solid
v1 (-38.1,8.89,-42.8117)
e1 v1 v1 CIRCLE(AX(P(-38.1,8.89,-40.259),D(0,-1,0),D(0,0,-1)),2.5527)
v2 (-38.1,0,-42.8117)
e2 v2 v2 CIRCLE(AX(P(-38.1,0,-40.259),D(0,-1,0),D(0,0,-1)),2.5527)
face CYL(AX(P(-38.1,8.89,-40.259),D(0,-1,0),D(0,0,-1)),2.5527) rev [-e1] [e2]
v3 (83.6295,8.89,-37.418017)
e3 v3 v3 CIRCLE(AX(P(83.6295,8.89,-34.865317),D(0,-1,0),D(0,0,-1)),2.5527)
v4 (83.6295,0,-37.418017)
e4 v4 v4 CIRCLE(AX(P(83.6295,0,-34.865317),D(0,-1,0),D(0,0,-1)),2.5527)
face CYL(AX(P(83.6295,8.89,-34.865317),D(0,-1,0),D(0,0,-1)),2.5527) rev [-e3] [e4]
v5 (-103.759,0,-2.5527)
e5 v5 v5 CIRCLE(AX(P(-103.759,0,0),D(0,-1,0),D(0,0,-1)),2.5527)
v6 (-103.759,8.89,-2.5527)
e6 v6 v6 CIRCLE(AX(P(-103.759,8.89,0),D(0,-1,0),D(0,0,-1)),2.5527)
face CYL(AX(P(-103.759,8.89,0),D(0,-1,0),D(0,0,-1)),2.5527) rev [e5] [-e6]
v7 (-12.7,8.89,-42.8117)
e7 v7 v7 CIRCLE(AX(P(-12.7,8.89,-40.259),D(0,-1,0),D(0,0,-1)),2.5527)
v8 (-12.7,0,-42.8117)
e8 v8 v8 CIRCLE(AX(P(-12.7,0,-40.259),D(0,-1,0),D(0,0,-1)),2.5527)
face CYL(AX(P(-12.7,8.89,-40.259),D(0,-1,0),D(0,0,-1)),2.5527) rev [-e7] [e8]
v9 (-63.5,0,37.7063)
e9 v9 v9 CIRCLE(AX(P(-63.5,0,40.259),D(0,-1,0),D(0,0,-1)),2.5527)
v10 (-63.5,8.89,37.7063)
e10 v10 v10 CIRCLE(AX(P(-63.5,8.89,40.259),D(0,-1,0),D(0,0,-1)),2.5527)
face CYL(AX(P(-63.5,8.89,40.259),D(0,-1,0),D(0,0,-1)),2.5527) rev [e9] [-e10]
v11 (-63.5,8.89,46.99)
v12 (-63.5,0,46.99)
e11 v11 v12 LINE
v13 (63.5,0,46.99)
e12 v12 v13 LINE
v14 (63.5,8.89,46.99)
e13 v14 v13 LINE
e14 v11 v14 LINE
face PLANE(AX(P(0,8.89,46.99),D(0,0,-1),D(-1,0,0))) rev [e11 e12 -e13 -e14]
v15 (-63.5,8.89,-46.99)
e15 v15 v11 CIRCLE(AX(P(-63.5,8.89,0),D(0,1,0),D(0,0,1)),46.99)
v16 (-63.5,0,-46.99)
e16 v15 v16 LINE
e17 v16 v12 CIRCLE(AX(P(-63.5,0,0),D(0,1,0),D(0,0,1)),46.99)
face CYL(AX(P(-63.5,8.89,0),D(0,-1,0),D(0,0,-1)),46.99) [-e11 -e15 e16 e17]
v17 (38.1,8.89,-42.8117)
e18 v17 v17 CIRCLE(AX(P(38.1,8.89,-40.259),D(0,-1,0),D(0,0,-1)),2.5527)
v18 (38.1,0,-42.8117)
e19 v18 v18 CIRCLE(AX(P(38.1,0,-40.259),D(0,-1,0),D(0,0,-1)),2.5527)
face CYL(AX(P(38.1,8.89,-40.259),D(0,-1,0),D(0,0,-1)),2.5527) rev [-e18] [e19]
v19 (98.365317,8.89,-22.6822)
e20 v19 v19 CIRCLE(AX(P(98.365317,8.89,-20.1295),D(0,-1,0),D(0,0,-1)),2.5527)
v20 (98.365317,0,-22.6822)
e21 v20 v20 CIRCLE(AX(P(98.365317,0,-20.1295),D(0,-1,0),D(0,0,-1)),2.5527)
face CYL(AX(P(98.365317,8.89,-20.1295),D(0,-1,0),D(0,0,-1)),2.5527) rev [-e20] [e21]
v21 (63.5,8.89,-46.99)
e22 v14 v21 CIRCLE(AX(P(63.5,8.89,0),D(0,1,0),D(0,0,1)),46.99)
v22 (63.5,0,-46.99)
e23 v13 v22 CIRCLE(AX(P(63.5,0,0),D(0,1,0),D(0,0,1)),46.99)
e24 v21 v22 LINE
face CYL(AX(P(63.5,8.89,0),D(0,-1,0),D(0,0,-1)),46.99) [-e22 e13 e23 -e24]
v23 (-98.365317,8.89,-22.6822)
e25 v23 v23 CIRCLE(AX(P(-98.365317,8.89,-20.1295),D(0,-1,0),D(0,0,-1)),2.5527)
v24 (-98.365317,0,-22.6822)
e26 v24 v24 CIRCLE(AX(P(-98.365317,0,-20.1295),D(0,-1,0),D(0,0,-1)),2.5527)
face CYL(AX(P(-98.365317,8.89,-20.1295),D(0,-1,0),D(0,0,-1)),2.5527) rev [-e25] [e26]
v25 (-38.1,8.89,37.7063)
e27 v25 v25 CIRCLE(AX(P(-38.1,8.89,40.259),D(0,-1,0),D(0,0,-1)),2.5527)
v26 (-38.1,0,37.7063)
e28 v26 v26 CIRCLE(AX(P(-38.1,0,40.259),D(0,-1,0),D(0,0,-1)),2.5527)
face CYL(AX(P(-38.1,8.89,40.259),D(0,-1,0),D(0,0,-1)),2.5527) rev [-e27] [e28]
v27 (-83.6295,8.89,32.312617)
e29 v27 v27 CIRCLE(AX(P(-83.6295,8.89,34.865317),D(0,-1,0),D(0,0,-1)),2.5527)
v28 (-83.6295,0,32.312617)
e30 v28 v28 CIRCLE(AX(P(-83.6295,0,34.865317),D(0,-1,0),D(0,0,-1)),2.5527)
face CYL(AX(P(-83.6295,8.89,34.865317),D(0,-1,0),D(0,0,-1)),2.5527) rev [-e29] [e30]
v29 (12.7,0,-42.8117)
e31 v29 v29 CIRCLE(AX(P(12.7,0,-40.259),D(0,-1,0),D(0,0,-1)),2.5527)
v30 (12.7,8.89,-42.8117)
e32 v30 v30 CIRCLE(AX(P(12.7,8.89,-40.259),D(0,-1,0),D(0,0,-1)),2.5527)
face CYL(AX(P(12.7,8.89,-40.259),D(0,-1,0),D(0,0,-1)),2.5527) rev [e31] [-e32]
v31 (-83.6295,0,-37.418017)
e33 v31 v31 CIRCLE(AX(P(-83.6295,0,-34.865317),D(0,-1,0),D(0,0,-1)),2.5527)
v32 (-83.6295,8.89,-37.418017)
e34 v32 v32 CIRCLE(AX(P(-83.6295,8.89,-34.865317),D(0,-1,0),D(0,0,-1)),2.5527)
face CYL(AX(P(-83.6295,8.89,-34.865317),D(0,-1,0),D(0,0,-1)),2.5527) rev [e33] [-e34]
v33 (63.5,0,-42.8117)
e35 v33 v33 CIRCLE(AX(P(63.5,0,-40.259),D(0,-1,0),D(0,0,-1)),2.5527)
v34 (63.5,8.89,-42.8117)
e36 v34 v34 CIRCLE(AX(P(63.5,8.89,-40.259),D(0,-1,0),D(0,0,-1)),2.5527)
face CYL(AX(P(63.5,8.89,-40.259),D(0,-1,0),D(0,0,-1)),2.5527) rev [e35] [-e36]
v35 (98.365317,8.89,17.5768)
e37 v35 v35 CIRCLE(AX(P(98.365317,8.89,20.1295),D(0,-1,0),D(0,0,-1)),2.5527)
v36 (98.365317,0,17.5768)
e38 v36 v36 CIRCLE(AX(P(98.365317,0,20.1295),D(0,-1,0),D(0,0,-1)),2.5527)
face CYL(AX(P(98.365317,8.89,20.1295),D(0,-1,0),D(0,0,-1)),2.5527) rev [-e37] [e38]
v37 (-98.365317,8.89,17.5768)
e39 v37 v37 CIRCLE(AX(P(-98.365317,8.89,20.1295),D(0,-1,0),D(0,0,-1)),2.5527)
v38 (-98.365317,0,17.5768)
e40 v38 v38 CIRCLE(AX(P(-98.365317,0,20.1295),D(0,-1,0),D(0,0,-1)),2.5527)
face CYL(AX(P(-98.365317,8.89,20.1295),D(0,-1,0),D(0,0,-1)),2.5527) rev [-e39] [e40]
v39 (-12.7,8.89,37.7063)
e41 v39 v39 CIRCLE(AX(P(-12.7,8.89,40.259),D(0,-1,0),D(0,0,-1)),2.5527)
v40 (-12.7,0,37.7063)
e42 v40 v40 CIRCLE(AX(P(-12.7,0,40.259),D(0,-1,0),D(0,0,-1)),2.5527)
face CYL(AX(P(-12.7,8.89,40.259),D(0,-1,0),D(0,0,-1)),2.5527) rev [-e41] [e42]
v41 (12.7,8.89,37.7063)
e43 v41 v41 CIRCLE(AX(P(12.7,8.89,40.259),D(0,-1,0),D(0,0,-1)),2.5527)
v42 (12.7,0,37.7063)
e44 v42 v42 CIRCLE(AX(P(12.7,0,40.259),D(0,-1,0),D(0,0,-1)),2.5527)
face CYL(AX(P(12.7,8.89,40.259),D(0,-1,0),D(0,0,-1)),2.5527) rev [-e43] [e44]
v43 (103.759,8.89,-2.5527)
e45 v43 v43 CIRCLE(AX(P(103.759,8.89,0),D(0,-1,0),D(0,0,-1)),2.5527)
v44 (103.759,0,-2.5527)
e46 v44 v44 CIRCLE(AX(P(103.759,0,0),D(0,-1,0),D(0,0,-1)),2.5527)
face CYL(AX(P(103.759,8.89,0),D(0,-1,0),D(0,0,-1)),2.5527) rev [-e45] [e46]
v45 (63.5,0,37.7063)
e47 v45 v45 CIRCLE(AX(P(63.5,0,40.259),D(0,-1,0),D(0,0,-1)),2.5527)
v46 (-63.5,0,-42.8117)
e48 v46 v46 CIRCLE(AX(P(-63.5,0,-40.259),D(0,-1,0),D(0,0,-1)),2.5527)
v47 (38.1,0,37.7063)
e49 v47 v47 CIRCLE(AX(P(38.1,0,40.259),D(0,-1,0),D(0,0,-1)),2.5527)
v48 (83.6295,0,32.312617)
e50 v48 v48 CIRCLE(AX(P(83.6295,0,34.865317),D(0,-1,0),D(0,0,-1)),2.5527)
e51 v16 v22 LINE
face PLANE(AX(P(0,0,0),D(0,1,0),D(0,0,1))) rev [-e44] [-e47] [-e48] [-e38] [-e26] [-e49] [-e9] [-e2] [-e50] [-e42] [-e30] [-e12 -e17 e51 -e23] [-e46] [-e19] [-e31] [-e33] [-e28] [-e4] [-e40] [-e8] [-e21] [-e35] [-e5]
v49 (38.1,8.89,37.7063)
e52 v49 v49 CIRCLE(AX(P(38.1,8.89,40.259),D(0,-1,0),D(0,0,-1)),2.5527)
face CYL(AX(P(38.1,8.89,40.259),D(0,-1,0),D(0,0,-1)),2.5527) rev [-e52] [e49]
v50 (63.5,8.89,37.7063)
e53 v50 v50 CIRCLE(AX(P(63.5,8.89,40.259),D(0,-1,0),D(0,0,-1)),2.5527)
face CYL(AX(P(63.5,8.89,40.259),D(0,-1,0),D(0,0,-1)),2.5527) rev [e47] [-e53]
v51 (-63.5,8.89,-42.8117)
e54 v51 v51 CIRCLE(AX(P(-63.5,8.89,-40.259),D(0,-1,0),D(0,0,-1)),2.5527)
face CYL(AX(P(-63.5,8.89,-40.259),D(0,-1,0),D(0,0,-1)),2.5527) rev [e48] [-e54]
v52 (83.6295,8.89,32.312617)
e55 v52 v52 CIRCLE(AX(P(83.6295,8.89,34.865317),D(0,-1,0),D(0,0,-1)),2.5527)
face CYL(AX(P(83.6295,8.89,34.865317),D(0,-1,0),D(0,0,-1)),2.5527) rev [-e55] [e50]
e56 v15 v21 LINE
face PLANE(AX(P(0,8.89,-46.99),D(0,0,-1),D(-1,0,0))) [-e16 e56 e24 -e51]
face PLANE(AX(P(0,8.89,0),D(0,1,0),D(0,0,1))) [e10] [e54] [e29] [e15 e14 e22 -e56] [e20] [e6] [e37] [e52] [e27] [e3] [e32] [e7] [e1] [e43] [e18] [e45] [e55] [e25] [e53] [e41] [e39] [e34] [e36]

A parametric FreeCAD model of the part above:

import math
import FreeCAD as App
import Part
import Sketcher

V = App.Vector
Q = App.Units.Quantity

doc = App.newDocument("Part")
body = doc.addObject("PartDesign::Body", "Body")

# Sketch on XZ plane
sketch1 = body.newObject("Sketcher::SketchObject", "Sketch")
sketch1.AttachmentSupport = (doc.getObject("XZ_Plane"), [""])
sketch1.MapMode = "FlatFace"
sketch1.addGeometry([
    Part.LineSegment(V(63.5, -46.99, 0), V(-63.5, -46.99, 0)),
    Part.ArcOfCircle(Part.Circle(V(-63.5, 0, 0), V(0, 0, 1), 46.99), math.radians(90), math.radians(270)),
    Part.LineSegment(V(-63.5, 46.99, 0), V(63.5, 46.99, 0)),
    Part.ArcOfCircle(Part.Circle(V(63.5, 0, 0), V(0, 0, 1), 46.99), math.radians(-90), math.radians(90)),
], False)
sketch1.addConstraint([
    Sketcher.Constraint("Tangent", 0, 2, 1, 2),
    Sketcher.Constraint("Tangent", 1, 1, 2, 1),
    Sketcher.Constraint("Tangent", 2, 2, 3, 2),
    Sketcher.Constraint("Tangent", 3, 1, 0, 1),
    Sketcher.Constraint("Horizontal", 0),
    Sketcher.Constraint("Horizontal", 2),
    Sketcher.Constraint("Symmetric", 1, 3, 3, 3, -1, 1),
    Sketcher.Constraint("DistanceX", 0, 2, 0, 1, Q("5 in")),
    Sketcher.Constraint("Radius", 1, Q("1.85 in")),
])
pad1 = body.newObject("PartDesign::Pad", "Pad")
pad1.Profile = sketch1
pad1.Length = Q("0.35 in")
pad1.Reversed = True

# Sketch on XZ plane
sketch2 = body.newObject("Sketcher::SketchObject", "Sketch001")
sketch2.AttachmentSupport = (doc.getObject("XZ_Plane"), [""])
sketch2.MapMode = "FlatFace"
sketch2.addGeometry([
    Part.Circle(V(83.6295, -34.865317, 0), V(0, 0, 1), 2.5527),  # 0
    Part.Circle(V(63.5, -40.259, 0), V(0, 0, 1), 2.5527),  # 1
    Part.Circle(V(38.1, -40.259, 0), V(0, 0, 1), 2.5527),  # 2
    Part.Circle(V(12.7, -40.259, 0), V(0, 0, 1), 2.5527),  # 3
    Part.Circle(V(-12.7, -40.259, 0), V(0, 0, 1), 2.5527),  # 4
    Part.Circle(V(-38.1, -40.259, 0), V(0, 0, 1), 2.5527),  # 5
    Part.Circle(V(-63.5, -40.259, 0), V(0, 0, 1), 2.5527),  # 6
    Part.Circle(V(-83.6295, -34.865317, 0), V(0, 0, 1), 2.5527),  # 7
    Part.Circle(V(-98.365317, -20.1295, 0), V(0, 0, 1), 2.5527),  # 8
    Part.Circle(V(-103.759, 0, 0), V(0, 0, 1), 2.5527),  # 9
    Part.Circle(V(-98.365317, 20.1295, 0), V(0, 0, 1), 2.5527),  # 10
    Part.Circle(V(-83.6295, 34.865317, 0), V(0, 0, 1), 2.5527),  # 11
    Part.Circle(V(-63.5, 40.259, 0), V(0, 0, 1), 2.5527),  # 12
    Part.Circle(V(-38.1, 40.259, 0), V(0, 0, 1), 2.5527),  # 13
    Part.Circle(V(-12.7, 40.259, 0), V(0, 0, 1), 2.5527),  # 14
    Part.Circle(V(12.7, 40.259, 0), V(0, 0, 1), 2.5527),  # 15
    Part.Circle(V(38.1, 40.259, 0), V(0, 0, 1), 2.5527),  # 16
    Part.Circle(V(63.5, 40.259, 0), V(0, 0, 1), 2.5527),  # 17
    Part.Circle(V(83.6295, 34.865317, 0), V(0, 0, 1), 2.5527),  # 18
    Part.Circle(V(98.365317, 20.1295, 0), V(0, 0, 1), 2.5527),  # 19
    Part.Circle(V(103.759, 0, 0), V(0, 0, 1), 2.5527),  # 20
    Part.Circle(V(98.365317, -20.1295, 0), V(0, 0, 1), 2.5527),  # 21
], False)
sketch2.addConstraint([
    Sketcher.Constraint("Equal", 0, 1),
    Sketcher.Constraint("Equal", 1, 2),
    Sketcher.Constraint("Equal", 2, 3),
    Sketcher.Constraint("Equal", 3, 4),
    Sketcher.Constraint("Equal", 4, 5),
    Sketcher.Constraint("Equal", 5, 6),
    Sketcher.Constraint("Equal", 6, 7),
    Sketcher.Constraint("Equal", 7, 8),
    Sketcher.Constraint("Equal", 8, 9),
    Sketcher.Constraint("Equal", 9, 10),
    Sketcher.Constraint("Equal", 10, 11),
    Sketcher.Constraint("Equal", 11, 12),
    Sketcher.Constraint("Equal", 12, 13),
    Sketcher.Constraint("Equal", 13, 14),
    Sketcher.Constraint("Equal", 14, 15),
    Sketcher.Constraint("Equal", 15, 16),
    Sketcher.Constraint("Equal", 16, 17),
    Sketcher.Constraint("Equal", 17, 18),
    Sketcher.Constraint("Equal", 18, 19),
    Sketcher.Constraint("Equal", 19, 20),
    Sketcher.Constraint("Equal", 20, 21),
    Sketcher.Constraint("Symmetric", 0, 3, 11, 3, -1, 1),
    Sketcher.Constraint("Symmetric", 1, 3, 12, 3, -1, 1),
    Sketcher.Constraint("Symmetric", 2, 3, 13, 3, -1, 1),
    Sketcher.Constraint("Symmetric", 3, 3, 14, 3, -1, 1),
    Sketcher.Constraint("Symmetric", 4, 3, 15, 3, -1, 1),
    Sketcher.Constraint("Symmetric", 5, 3, 16, 3, -1, 1),
    Sketcher.Constraint("Symmetric", 6, 3, 17, 3, -1, 1),
    Sketcher.Constraint("Symmetric", 7, 3, 18, 3, -1, 1),
    Sketcher.Constraint("Symmetric", 8, 3, 19, 3, -1, 1),
    Sketcher.Constraint("Symmetric", 9, 3, 20, 3, -1, 1),
    Sketcher.Constraint("Symmetric", 10, 3, 21, 3, -1, 1),
    Sketcher.Constraint("Symmetric", 3, 3, 4, 3, -2),
    Sketcher.Constraint("Symmetric", 2, 3, 5, 3, -2),
    Sketcher.Constraint("Symmetric", 1, 3, 6, 3, -2),
    Sketcher.Constraint("Symmetric", 0, 3, 7, 3, -2),
    Sketcher.Constraint("Symmetric", 10, 3, 19, 3, -2),
    Sketcher.Constraint("PointOnObject", 9, 3, -1),
    Sketcher.Constraint("Horizontal", 1, 3, 2, 3),
    Sketcher.Constraint("Horizontal", 2, 3, 3, 3),
    Sketcher.Constraint("Diameter", 0, Q("0.201 in")),
    Sketcher.Constraint("DistanceX", 2, 3, 1, 3, Q("1 in")),
    Sketcher.Constraint("DistanceX", 3, 3, 2, 3, Q("1 in")),
    Sketcher.Constraint("DistanceX", 4, 3, 3, 3, Q("1 in")),
    Sketcher.Constraint("DistanceY", 5, 3, 13, 3, Q("3.17 in")),
    Sketcher.Constraint("DistanceX", 9, 3, -1, 1, Q("4.085 in")),
    Sketcher.Constraint("DistanceY", 8, 3, 10, 3, Q("1.585 in")),
    Sketcher.Constraint("DistanceX", -1, 1, 0, 3, Q("3.2925 in")),
    Sketcher.Constraint("DistanceY", 0, 3, -1, 1, Q("34.865317 mm")),
    Sketcher.Constraint("DistanceX", 8, 3, -1, 1, Q("98.365317 mm")),
])
pocket1 = body.newObject("PartDesign::Pocket", "Pocket")
pocket1.Profile = sketch2
pocket1.Type = "ThroughAll"

doc.recompute()
